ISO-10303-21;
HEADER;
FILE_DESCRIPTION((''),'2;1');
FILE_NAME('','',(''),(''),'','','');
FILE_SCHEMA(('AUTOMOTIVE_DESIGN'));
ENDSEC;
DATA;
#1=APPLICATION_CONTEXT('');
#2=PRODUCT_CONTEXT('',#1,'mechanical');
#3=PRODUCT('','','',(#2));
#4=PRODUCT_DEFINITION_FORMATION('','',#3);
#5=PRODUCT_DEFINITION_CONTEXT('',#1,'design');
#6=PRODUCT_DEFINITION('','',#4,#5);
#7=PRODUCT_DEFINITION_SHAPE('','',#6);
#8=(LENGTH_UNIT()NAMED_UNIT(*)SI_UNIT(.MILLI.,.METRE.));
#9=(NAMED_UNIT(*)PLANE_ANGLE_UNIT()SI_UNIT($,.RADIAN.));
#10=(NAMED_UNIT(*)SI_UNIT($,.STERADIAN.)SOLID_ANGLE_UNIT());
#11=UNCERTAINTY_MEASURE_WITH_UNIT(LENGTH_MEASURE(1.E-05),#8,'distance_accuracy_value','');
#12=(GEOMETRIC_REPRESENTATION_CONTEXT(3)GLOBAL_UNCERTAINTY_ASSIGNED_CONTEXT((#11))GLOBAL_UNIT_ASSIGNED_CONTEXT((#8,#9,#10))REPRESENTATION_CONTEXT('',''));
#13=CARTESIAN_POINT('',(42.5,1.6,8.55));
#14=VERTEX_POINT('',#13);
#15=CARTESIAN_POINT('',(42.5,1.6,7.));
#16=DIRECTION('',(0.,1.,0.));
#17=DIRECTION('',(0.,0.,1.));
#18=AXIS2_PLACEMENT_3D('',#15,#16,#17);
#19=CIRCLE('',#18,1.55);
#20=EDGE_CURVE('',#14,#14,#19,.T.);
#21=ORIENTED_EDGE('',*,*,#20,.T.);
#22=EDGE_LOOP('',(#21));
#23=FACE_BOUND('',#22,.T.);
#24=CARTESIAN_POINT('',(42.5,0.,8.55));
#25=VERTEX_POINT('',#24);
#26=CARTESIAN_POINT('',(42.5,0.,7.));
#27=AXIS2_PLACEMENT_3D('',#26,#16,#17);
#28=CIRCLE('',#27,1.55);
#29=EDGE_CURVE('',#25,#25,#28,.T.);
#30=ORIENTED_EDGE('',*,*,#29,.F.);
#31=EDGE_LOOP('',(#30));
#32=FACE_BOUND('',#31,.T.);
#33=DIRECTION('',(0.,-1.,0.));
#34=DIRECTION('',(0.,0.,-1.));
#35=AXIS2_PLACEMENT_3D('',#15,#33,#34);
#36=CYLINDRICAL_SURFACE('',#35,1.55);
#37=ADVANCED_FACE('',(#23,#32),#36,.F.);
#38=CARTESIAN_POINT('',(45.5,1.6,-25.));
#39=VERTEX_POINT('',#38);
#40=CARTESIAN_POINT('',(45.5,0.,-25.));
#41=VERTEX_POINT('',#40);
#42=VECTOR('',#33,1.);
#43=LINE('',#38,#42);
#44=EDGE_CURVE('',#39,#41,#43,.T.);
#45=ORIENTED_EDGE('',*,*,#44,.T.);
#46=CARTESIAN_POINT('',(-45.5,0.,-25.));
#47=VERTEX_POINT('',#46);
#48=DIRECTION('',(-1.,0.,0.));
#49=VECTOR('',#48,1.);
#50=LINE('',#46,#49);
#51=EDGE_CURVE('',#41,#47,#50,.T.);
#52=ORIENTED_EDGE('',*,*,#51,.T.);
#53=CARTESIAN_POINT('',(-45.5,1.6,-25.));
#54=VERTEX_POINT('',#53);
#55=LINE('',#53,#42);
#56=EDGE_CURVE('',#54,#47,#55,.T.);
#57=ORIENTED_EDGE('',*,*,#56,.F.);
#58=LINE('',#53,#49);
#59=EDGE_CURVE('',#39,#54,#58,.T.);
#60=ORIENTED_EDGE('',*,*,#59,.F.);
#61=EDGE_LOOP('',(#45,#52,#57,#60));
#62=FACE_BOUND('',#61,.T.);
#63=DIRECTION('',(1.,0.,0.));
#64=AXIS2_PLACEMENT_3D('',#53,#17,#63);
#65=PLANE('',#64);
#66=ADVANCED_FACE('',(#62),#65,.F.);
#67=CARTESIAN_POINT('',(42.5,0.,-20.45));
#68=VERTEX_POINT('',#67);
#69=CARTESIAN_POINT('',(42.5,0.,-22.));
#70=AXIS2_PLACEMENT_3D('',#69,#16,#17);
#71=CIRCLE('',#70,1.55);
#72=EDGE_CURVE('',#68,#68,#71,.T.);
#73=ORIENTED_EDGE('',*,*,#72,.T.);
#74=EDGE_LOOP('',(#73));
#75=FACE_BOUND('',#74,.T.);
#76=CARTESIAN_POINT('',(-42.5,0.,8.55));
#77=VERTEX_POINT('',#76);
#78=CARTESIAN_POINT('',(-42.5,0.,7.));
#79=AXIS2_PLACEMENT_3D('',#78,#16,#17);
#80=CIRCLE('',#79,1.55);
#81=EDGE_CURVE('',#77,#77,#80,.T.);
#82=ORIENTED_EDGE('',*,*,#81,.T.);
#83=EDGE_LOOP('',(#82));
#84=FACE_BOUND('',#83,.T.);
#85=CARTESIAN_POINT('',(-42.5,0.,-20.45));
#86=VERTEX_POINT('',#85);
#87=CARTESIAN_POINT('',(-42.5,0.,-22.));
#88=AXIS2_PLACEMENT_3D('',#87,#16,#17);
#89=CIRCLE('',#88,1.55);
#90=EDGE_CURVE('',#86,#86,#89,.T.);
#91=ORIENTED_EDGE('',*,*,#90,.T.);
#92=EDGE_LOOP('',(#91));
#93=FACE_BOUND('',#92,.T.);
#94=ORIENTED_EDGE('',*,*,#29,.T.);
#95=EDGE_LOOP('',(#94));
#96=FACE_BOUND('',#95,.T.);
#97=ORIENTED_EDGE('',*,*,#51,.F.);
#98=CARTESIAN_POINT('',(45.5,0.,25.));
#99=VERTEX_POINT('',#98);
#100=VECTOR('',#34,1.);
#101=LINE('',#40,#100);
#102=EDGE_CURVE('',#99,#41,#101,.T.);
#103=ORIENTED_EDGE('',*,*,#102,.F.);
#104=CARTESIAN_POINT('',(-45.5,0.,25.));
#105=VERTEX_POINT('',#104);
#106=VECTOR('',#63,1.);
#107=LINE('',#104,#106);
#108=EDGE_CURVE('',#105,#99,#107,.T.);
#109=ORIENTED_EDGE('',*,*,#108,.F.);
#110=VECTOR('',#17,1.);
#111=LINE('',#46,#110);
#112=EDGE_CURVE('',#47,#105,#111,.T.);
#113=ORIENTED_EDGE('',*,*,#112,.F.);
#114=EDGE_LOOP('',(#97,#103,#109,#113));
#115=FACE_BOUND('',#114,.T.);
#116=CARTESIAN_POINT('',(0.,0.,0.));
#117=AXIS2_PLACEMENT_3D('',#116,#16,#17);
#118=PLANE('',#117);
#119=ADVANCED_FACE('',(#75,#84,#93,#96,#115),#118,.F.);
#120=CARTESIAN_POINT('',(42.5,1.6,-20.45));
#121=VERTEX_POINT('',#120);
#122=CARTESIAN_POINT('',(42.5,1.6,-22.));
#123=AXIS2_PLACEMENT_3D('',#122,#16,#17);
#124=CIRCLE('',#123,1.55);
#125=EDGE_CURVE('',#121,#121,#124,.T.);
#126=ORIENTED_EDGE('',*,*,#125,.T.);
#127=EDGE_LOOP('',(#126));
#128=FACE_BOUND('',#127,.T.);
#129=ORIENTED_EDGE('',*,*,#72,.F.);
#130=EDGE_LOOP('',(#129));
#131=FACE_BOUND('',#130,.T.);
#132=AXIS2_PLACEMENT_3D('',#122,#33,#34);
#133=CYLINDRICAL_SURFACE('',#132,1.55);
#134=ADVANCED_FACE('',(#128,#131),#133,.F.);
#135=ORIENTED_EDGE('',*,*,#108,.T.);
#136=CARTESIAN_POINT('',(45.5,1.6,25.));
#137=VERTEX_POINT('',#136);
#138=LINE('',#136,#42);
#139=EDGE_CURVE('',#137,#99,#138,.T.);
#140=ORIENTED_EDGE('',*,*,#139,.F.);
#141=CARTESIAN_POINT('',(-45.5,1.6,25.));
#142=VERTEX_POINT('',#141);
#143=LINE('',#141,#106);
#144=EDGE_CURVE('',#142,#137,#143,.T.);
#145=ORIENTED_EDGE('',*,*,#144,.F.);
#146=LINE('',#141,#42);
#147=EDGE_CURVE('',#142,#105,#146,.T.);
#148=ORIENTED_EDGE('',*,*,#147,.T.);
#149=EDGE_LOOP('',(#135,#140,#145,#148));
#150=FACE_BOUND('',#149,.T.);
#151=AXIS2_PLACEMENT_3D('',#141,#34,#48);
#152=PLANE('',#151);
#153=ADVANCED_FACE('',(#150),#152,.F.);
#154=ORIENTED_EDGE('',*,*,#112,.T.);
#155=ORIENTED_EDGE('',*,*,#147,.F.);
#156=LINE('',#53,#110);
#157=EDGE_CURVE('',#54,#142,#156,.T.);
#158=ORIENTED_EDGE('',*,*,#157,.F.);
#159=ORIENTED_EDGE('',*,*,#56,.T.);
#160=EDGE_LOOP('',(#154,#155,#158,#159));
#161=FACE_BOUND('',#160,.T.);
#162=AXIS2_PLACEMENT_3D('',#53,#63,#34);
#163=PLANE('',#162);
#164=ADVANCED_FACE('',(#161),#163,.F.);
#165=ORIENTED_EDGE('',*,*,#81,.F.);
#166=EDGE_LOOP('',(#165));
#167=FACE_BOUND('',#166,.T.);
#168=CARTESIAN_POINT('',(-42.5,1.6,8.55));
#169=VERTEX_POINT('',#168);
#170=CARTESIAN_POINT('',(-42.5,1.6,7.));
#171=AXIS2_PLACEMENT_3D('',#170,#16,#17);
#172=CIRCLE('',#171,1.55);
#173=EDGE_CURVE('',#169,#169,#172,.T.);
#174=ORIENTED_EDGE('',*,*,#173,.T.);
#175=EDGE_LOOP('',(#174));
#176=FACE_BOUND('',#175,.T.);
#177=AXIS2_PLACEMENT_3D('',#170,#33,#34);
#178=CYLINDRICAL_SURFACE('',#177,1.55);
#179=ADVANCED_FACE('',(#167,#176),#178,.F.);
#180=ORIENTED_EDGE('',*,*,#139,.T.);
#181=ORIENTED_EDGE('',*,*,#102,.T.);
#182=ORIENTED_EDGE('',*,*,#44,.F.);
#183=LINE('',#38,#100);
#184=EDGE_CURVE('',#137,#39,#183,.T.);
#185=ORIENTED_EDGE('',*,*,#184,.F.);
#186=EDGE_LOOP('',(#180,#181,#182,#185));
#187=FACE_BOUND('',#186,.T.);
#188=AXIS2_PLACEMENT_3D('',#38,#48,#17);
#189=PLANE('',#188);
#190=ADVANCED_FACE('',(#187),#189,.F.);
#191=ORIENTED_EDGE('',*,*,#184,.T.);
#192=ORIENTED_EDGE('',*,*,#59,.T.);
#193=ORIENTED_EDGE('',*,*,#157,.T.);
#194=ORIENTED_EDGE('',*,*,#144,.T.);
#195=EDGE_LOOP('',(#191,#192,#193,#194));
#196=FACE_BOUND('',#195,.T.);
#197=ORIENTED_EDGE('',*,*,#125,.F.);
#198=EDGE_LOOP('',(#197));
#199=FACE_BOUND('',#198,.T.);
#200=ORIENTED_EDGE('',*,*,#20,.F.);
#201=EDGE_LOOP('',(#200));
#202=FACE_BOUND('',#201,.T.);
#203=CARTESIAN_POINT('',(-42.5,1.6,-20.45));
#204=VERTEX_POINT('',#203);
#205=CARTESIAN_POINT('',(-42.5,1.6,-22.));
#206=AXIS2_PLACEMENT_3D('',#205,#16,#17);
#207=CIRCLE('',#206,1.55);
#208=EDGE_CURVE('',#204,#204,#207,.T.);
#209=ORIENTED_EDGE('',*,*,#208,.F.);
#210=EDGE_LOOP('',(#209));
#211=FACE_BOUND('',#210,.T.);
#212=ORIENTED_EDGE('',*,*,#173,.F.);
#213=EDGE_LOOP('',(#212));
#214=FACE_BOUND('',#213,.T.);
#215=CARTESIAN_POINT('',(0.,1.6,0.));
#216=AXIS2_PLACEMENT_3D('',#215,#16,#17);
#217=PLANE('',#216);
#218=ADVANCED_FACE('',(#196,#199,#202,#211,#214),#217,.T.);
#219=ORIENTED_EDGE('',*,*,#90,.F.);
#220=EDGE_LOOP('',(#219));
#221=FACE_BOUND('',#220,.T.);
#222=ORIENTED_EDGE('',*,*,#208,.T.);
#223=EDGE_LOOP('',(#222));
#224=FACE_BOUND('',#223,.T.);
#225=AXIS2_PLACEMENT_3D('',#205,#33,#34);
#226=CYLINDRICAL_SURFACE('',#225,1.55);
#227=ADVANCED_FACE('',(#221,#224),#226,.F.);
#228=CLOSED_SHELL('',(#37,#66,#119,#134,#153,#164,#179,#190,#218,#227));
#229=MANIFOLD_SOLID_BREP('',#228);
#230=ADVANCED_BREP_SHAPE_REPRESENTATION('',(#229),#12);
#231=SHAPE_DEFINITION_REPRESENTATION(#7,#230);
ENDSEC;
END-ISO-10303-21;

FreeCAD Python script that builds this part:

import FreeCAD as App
import Part
import Sketcher
from FreeCAD import Vector
Q = App.Units.Quantity

doc = App.newDocument("Part")
body = doc.addObject("PartDesign::Body", "Body")

# Sketch on XZ plane
sketch1 = body.newObject("Sketcher::SketchObject", "Sketch")
sketch1.AttachmentSupport = (doc.getObject("XZ_Plane"), [""])
sketch1.MapMode = "FlatFace"
sketch1.addGeometry([
    Part.LineSegment(Vector(-45.5, -25, 0), Vector(-45.5, 25, 0)),  # 0
    Part.LineSegment(Vector(-45.5, 25, 0), Vector(45.5, 25, 0)),  # 1
    Part.LineSegment(Vector(45.5, 25, 0), Vector(45.5, -25, 0)),  # 2
    Part.LineSegment(Vector(45.5, -25, 0), Vector(-45.5, -25, 0)),  # 3
    Part.Circle(Vector(-42.5, 7, 0), Vector(0, 0, 1), 1.6),  # 4
    Part.Circle(Vector(42.5, 7, 0), Vector(0, 0, 1), 1.6),  # 5
    Part.Circle(Vector(-42.5, -22, 0), Vector(0, 0, 1), 1.6),  # 6
    Part.Circle(Vector(42.5, -22, 0), Vector(0, 0, 1), 1.6),  # 7
], False)
sketch1.addConstraint([
    Sketcher.Constraint("Coincident", 0, 2, 1, 1),
    Sketcher.Constraint("Coincident", 1, 2, 2, 1),
    Sketcher.Constraint("Coincident", 2, 2, 3, 1),
    Sketcher.Constraint("Coincident", 3, 2, 0, 1),
    Sketcher.Constraint("Vertical", 0),
    Sketcher.Constraint("Horizontal", 1),
    Sketcher.Constraint("Vertical", 2),
    Sketcher.Constraint("Horizontal", 3),
    Sketcher.Constraint("Equal", 4, 5),
    Sketcher.Constraint("Equal", 5, 6),
    Sketcher.Constraint("Equal", 6, 7),
    Sketcher.Constraint("Symmetric", 0, 2, 2, 2, -1, 1),
    Sketcher.Constraint("Symmetric", 4, 3, 5, 3, -2),
    Sketcher.Constraint("Symmetric", 6, 3, 7, 3, -2),
    Sketcher.Constraint("Vertical", 4, 3, 6, 3),
    Sketcher.Constraint("Diameter", 4, Q("3.1 mm")),
    Sketcher.Constraint("DistanceX", 1, 1, 1, 2, Q("91 mm")),
    Sketcher.Constraint("DistanceY", 0, 1, 0, 2, Q("50 mm")),
    Sketcher.Constraint("DistanceY", -1, 1, 4, 3, Q("7 mm")),
    Sketcher.Constraint("DistanceY", 6, 3, -1, 1, Q("22 mm")),
    Sketcher.Constraint("DistanceX", 4, 3, 5, 3, Q("85 mm")),
])
pad1 = body.newObject("PartDesign::Pad", "Pad")
pad1.Profile = sketch1
pad1.Length = 1.6
pad1.Reversed = True

doc.recompute()
